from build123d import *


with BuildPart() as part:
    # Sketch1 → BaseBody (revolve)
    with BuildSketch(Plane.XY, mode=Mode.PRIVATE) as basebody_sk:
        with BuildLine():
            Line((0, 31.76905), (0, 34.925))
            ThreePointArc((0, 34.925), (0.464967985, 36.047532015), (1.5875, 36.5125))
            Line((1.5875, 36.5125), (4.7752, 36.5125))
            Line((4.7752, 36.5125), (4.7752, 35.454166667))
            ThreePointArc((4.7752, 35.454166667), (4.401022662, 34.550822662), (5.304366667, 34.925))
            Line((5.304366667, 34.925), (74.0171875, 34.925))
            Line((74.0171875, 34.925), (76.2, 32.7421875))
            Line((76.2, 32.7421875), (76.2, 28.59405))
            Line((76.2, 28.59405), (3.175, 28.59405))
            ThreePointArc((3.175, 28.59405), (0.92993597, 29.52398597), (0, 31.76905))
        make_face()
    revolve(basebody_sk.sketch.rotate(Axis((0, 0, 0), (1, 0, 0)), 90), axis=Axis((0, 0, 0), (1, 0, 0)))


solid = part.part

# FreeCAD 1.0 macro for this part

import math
import FreeCAD as App
import Part
import Sketcher
Q = App.Units.Quantity

doc = App.newDocument("Part")
params = doc.addObject("Spreadsheet::Sheet", "Params")
for row, (alias, value) in enumerate([
    ("sketch1_radius", "0.125 in"),
    ("sketch1_radius2", "0.0625 in"),
    ("revolution_angle", "360 deg"),
], start=1):
    params.set(f"A{row}", alias)
    params.set(f"B{row}", "=" + value)
    params.setAlias(f"B{row}", alias)

body = doc.addObject("PartDesign::Body", "Body")

# Sketch on XY plane
sketch1 = body.newObject("Sketcher::SketchObject", "Sketch")
sketch1.AttachmentSupport = (doc.getObject("XY_Plane"), [""])
sketch1.MapMode = "FlatFace"
sketch1.addGeometry([
    Part.LineSegment(App.Vector(0, 34.9, 0), App.Vector(0, 31.8, 0)),  # 0
    Part.ArcOfCircle(Part.Circle(App.Vector(3.2, 31.8, 0), App.Vector(0, 0, 1), 3.2), math.radians(-180), math.radians(-90)),  # 1
    Part.LineSegment(App.Vector(3.2, 28.6, 0), App.Vector(76.2, 28.6, 0)),  # 2
    Part.LineSegment(App.Vector(76.2, 28.6, 0), App.Vector(76.2, 32.7, 0)),  # 3
    Part.LineSegment(App.Vector(76.2, 32.7, 0), App.Vector(74, 34.9, 0)),  # 4
    Part.LineSegment(App.Vector(74, 34.9, 0), App.Vector(5.3, 34.9, 0)),  # 5
    Part.ArcOfCircle(Part.Circle(App.Vector(4.8, 34.9, 0), App.Vector(0, 0, 1), 0.5), math.radians(90), math.radians(360)),  # 6
    Part.LineSegment(App.Vector(4.8, 35.5, 0), App.Vector(4.8, 36.5, 0)),  # 7
    Part.LineSegment(App.Vector(4.8, 36.5, 0), App.Vector(1.6, 36.5, 0)),  # 8
    Part.ArcOfCircle(Part.Circle(App.Vector(1.6, 34.9, 0), App.Vector(0, 0, 1), 1.6), math.radians(90), math.radians(180)),  # 9
], False)
sketch1.addConstraint([
    Sketcher.Constraint("Tangent", 0, 2, 1, 1),
    Sketcher.Constraint("Tangent", 1, 2, 2, 1),
    Sketcher.Constraint("Coincident", 2, 2, 3, 1),
    Sketcher.Constraint("Coincident", 3, 2, 4, 1),
    Sketcher.Constraint("Coincident", 4, 2, 5, 1),
    Sketcher.Constraint("Coincident", 5, 2, 6, 2),
    Sketcher.Constraint("Coincident", 6, 1, 7, 1),
    Sketcher.Constraint("Coincident", 7, 2, 8, 1),
    Sketcher.Constraint("Tangent", 8, 2, 9, 1),
    Sketcher.Constraint("Tangent", 9, 2, 0, 1),
    Sketcher.Constraint("Vertical", 0),
    Sketcher.Constraint("Horizontal", 2),
    Sketcher.Constraint("Vertical", 3),
    Sketcher.Constraint("Horizontal", 5),
    Sketcher.Constraint("Vertical", 7),
    Sketcher.Constraint("Horizontal", 8),
    Sketcher.Constraint("PointOnObject", 0, 2, -2),
    Sketcher.Constraint("Horizontal", 6, 3, 9, 3),
    Sketcher.Constraint("Horizontal", 9, 3, 4, 2),
    Sketcher.Constraint("DistanceX", -1, 1, 2, 2, Q("3 in")),
    Sketcher.Constraint("Angle", 4, Q("135 deg")),
    Sketcher.Constraint("Radius", 1, Q("0.125 in")),
    Sketcher.Constraint("Radius", 9, Q("0.0625 in")),
    Sketcher.Constraint("DistanceX", 8, 2, 8, 1, Q("0.1255 in")),
    Sketcher.Constraint("DistanceX", -1, 1, 6, 3, Q("0.188 in")),
    Sketcher.Constraint("DistanceY", -1, 1, 6, 3, Q("1.375 in")),
    Sketcher.Constraint("Radius", 6, 0.529167),
    Sketcher.Constraint("DistanceX", 5, 2, 5, 1, 68.712821),
    Sketcher.Constraint("DistanceY", 0, 2, 0, 1, 3.15595),
])
sketch1.setExpression("Constraints[21]", "Params.sketch1_radius")
sketch1.setExpression("Constraints[22]", "Params.sketch1_radius2")
revolution = body.newObject("PartDesign::Revolution", "Revolution")
revolution.Profile = sketch1
revolution.ReferenceAxis = (sketch1, ["H_Axis"])
revolution.setExpression("Angle", "Params.revolution_angle")

doc.recompute()
